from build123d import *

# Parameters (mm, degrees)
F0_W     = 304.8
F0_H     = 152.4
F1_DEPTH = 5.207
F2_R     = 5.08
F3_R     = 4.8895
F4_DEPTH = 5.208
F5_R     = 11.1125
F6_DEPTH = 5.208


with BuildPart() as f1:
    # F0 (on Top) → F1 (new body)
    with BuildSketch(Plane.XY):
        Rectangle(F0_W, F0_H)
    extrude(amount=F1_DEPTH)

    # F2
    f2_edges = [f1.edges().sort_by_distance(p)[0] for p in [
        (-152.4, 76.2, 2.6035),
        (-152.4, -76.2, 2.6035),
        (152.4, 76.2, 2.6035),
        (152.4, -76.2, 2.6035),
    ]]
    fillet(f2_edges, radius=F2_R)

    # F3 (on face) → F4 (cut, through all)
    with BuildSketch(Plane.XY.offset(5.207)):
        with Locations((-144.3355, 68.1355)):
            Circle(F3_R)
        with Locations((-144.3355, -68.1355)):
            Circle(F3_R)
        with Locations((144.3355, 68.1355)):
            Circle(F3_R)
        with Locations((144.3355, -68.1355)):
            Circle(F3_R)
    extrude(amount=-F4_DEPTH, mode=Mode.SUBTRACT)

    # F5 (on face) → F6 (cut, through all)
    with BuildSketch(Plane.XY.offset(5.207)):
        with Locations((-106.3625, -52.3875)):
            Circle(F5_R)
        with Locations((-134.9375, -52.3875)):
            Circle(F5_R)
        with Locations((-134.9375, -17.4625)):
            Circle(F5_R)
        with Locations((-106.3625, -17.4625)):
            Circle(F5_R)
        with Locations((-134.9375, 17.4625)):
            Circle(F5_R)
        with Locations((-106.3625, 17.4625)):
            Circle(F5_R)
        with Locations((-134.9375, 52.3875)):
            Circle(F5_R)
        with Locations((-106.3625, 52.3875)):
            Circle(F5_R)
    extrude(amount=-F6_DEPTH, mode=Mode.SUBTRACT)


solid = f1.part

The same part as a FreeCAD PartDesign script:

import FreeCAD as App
import Part
import Sketcher

V = App.Vector
Q = App.Units.Quantity


def edges_at(feature, points):
    """Names of the edges that pass closest to the given points."""
    edges = feature.Shape.Edges
    near = lambda p: min(range(len(edges)), key=lambda i: edges[i].distToShape(Part.Vertex(*p))[0])
    return sorted({f"Edge{near(p) + 1}" for p in points})

doc = App.newDocument("Part")
params = doc.addObject("Spreadsheet::Sheet", "Params")
for row, (alias, value) in enumerate([
    ("sketch1_width", "12 in"),
    ("sketch1_height", "6 in"),
    ("pad1_length", "0.205 in"),
    ("fillet_radius", "0.2 in"),
    ("sketch2_diameter", "0.385 in"),
    ("sketch3_diameter", "0.875 in"),
], start=1):
    params.set(f"A{row}", alias)
    params.set(f"B{row}", "=" + value)
    params.setAlias(f"B{row}", alias)

body = doc.addObject("PartDesign::Body", "Body")

# Sketch on XY plane
sketch1 = body.newObject("Sketcher::SketchObject", "Sketch")
sketch1.AttachmentSupport = (doc.getObject("XY_Plane"), [""])
sketch1.MapMode = "FlatFace"
sketch1.addGeometry([
    Part.LineSegment(V(-152.4, 76.2, 0), V(-152.4, -76.2, 0)),
    Part.LineSegment(V(-152.4, -76.2, 0), V(152.4, -76.2, 0)),
    Part.LineSegment(V(152.4, -76.2, 0), V(152.4, 76.2, 0)),
    Part.LineSegment(V(152.4, 76.2, 0), V(-152.4, 76.2, 0)),
], False)
sketch1.addConstraint([
    Sketcher.Constraint("Coincident", 0, 2, 1, 1),
    Sketcher.Constraint("Coincident", 1, 2, 2, 1),
    Sketcher.Constraint("Coincident", 2, 2, 3, 1),
    Sketcher.Constraint("Coincident", 3, 2, 0, 1),
    Sketcher.Constraint("Vertical", 0),
    Sketcher.Constraint("Horizontal", 1),
    Sketcher.Constraint("Vertical", 2),
    Sketcher.Constraint("Horizontal", 3),
    Sketcher.Constraint("Symmetric", 0, 2, 2, 2, -1, 1),
    Sketcher.Constraint("DistanceX", 1, 1, 1, 2, Q("12 in")),
    Sketcher.Constraint("DistanceY", 0, 2, 0, 1, Q("6 in")),
])
sketch1.setExpression("Constraints[9]", "Params.sketch1_width")
sketch1.setExpression("Constraints[10]", "Params.sketch1_height")
pad1 = body.newObject("PartDesign::Pad", "Pad")
pad1.Profile = sketch1
pad1.setExpression("Length", "Params.pad1_length")
doc.recompute()

fillet = body.newObject("PartDesign::Fillet", "Fillet")
fillet.Base = (pad1, edges_at(pad1, [
    (-152.4, 76.2, 2.603),
    (-152.4, -76.2, 2.603),
    (152.4, 76.2, 2.603),
    (152.4, -76.2, 2.603),
]))
fillet.setExpression("Radius", "Params.fillet_radius")

# Sketch on XY plane
sketch2 = body.newObject("Sketcher::SketchObject", "Sketch001")
sketch2.AttachmentSupport = (doc.getObject("XY_Plane"), [""])
sketch2.MapMode = "FlatFace"
sketch2.AttachmentOffset = App.Placement(V(0, 0, 0.205 * 25.4), App.Rotation())
sketch2.addGeometry([
    Part.Circle(V(-144.3355, 68.1355, 0), V(0, 0, 1), 4.8895),
    Part.Circle(V(-144.3355, -68.1355, 0), V(0, 0, 1), 4.8895),
    Part.Circle(V(144.3355, 68.1355, 0), V(0, 0, 1), 4.8895),
    Part.Circle(V(144.3355, -68.1355, 0), V(0, 0, 1), 4.8895),
], False)
sketch2.addConstraint([
    Sketcher.Constraint("Equal", 0, 1),
    Sketcher.Constraint("Equal", 1, 2),
    Sketcher.Constraint("Equal", 2, 3),
    Sketcher.Constraint("Symmetric", 1, 3, 2, 3, -1, 1),
    Sketcher.Constraint("Symmetric", 0, 3, 3, 3, -1, 1),
    Sketcher.Constraint("Symmetric", 0, 3, 2, 3, -2),
    Sketcher.Constraint("Diameter", 0, Q("0.385 in")),
    Sketcher.Constraint("DistanceY", 1, 3, 0, 3, Q("5.365 in")),
    Sketcher.Constraint("DistanceX", 0, 3, 2, 3, Q("11.365 in")),
])
sketch2.setExpression("Constraints[6]", "Params.sketch2_diameter")
pocket1 = body.newObject("PartDesign::Pocket", "Pocket")
pocket1.Profile = sketch2
pocket1.Type = "ThroughAll"

# Sketch on XY plane
sketch3 = body.newObject("Sketcher::SketchObject", "Sketch002")
sketch3.AttachmentSupport = (doc.getObject("XY_Plane"), [""])
sketch3.MapMode = "FlatFace"
sketch3.AttachmentOffset = App.Placement(V(0, 0, 0.205 * 25.4), App.Rotation())
sketch3.addGeometry([
    Part.Circle(V(-106.3625, -52.3875, 0), V(0, 0, 1), 11.1125),  # 0
    Part.Circle(V(-134.9375, -52.3875, 0), V(0, 0, 1), 11.1125),  # 1
    Part.Circle(V(-134.9375, -17.4625, 0), V(0, 0, 1), 11.1125),  # 2
    Part.Circle(V(-106.3625, -17.4625, 0), V(0, 0, 1), 11.1125),  # 3
    Part.Circle(V(-134.9375, 17.4625, 0), V(0, 0, 1), 11.1125),  # 4
    Part.Circle(V(-106.3625, 17.4625, 0), V(0, 0, 1), 11.1125),  # 5
    Part.Circle(V(-134.9375, 52.3875, 0), V(0, 0, 1), 11.1125),  # 6
    Part.Circle(V(-106.3625, 52.3875, 0), V(0, 0, 1), 11.1125),  # 7
], False)
sketch3.addConstraint([
    Sketcher.Constraint("Equal", 0, 1),
    Sketcher.Constraint("Equal", 1, 2),
    Sketcher.Constraint("Equal", 2, 3),
    Sketcher.Constraint("Equal", 3, 4),
    Sketcher.Constraint("Equal", 4, 5),
    Sketcher.Constraint("Equal", 5, 6),
    Sketcher.Constraint("Equal", 6, 7),
    Sketcher.Constraint("Symmetric", 2, 3, 4, 3, -1),
    Sketcher.Constraint("Symmetric", 3, 3, 5, 3, -1),
    Sketcher.Constraint("Symmetric", 1, 3, 6, 3, -1),
    Sketcher.Constraint("Symmetric", 0, 3, 7, 3, -1),
    Sketcher.Constraint("Horizontal", 0, 3, 1, 3),
    Sketcher.Constraint("Horizontal", 2, 3, 3, 3),
    Sketcher.Constraint("Vertical", 1, 3, 2, 3),
    Sketcher.Constraint("Vertical", 0, 3, 3, 3),
    Sketcher.Constraint("Diameter", 0, Q("0.875 in")),
    Sketcher.Constraint("DistanceY", 1, 3, 4, 3, Q("2.75 in")),
    Sketcher.Constraint("DistanceX", 0, 3, -1, 1, Q("4.1875 in")),
    Sketcher.Constraint("DistanceY", 0, 3, -1, 1, Q("2.0625 in")),
    Sketcher.Constraint("DistanceX", 1, 3, -1, 1, Q("5.3125 in")),
])
sketch3.setExpression("Constraints[15]", "Params.sketch3_diameter")
pocket2 = body.newObject("PartDesign::Pocket", "Pocket001")
pocket2.Profile = sketch3
pocket2.Type = "ThroughAll"

doc.recompute()
